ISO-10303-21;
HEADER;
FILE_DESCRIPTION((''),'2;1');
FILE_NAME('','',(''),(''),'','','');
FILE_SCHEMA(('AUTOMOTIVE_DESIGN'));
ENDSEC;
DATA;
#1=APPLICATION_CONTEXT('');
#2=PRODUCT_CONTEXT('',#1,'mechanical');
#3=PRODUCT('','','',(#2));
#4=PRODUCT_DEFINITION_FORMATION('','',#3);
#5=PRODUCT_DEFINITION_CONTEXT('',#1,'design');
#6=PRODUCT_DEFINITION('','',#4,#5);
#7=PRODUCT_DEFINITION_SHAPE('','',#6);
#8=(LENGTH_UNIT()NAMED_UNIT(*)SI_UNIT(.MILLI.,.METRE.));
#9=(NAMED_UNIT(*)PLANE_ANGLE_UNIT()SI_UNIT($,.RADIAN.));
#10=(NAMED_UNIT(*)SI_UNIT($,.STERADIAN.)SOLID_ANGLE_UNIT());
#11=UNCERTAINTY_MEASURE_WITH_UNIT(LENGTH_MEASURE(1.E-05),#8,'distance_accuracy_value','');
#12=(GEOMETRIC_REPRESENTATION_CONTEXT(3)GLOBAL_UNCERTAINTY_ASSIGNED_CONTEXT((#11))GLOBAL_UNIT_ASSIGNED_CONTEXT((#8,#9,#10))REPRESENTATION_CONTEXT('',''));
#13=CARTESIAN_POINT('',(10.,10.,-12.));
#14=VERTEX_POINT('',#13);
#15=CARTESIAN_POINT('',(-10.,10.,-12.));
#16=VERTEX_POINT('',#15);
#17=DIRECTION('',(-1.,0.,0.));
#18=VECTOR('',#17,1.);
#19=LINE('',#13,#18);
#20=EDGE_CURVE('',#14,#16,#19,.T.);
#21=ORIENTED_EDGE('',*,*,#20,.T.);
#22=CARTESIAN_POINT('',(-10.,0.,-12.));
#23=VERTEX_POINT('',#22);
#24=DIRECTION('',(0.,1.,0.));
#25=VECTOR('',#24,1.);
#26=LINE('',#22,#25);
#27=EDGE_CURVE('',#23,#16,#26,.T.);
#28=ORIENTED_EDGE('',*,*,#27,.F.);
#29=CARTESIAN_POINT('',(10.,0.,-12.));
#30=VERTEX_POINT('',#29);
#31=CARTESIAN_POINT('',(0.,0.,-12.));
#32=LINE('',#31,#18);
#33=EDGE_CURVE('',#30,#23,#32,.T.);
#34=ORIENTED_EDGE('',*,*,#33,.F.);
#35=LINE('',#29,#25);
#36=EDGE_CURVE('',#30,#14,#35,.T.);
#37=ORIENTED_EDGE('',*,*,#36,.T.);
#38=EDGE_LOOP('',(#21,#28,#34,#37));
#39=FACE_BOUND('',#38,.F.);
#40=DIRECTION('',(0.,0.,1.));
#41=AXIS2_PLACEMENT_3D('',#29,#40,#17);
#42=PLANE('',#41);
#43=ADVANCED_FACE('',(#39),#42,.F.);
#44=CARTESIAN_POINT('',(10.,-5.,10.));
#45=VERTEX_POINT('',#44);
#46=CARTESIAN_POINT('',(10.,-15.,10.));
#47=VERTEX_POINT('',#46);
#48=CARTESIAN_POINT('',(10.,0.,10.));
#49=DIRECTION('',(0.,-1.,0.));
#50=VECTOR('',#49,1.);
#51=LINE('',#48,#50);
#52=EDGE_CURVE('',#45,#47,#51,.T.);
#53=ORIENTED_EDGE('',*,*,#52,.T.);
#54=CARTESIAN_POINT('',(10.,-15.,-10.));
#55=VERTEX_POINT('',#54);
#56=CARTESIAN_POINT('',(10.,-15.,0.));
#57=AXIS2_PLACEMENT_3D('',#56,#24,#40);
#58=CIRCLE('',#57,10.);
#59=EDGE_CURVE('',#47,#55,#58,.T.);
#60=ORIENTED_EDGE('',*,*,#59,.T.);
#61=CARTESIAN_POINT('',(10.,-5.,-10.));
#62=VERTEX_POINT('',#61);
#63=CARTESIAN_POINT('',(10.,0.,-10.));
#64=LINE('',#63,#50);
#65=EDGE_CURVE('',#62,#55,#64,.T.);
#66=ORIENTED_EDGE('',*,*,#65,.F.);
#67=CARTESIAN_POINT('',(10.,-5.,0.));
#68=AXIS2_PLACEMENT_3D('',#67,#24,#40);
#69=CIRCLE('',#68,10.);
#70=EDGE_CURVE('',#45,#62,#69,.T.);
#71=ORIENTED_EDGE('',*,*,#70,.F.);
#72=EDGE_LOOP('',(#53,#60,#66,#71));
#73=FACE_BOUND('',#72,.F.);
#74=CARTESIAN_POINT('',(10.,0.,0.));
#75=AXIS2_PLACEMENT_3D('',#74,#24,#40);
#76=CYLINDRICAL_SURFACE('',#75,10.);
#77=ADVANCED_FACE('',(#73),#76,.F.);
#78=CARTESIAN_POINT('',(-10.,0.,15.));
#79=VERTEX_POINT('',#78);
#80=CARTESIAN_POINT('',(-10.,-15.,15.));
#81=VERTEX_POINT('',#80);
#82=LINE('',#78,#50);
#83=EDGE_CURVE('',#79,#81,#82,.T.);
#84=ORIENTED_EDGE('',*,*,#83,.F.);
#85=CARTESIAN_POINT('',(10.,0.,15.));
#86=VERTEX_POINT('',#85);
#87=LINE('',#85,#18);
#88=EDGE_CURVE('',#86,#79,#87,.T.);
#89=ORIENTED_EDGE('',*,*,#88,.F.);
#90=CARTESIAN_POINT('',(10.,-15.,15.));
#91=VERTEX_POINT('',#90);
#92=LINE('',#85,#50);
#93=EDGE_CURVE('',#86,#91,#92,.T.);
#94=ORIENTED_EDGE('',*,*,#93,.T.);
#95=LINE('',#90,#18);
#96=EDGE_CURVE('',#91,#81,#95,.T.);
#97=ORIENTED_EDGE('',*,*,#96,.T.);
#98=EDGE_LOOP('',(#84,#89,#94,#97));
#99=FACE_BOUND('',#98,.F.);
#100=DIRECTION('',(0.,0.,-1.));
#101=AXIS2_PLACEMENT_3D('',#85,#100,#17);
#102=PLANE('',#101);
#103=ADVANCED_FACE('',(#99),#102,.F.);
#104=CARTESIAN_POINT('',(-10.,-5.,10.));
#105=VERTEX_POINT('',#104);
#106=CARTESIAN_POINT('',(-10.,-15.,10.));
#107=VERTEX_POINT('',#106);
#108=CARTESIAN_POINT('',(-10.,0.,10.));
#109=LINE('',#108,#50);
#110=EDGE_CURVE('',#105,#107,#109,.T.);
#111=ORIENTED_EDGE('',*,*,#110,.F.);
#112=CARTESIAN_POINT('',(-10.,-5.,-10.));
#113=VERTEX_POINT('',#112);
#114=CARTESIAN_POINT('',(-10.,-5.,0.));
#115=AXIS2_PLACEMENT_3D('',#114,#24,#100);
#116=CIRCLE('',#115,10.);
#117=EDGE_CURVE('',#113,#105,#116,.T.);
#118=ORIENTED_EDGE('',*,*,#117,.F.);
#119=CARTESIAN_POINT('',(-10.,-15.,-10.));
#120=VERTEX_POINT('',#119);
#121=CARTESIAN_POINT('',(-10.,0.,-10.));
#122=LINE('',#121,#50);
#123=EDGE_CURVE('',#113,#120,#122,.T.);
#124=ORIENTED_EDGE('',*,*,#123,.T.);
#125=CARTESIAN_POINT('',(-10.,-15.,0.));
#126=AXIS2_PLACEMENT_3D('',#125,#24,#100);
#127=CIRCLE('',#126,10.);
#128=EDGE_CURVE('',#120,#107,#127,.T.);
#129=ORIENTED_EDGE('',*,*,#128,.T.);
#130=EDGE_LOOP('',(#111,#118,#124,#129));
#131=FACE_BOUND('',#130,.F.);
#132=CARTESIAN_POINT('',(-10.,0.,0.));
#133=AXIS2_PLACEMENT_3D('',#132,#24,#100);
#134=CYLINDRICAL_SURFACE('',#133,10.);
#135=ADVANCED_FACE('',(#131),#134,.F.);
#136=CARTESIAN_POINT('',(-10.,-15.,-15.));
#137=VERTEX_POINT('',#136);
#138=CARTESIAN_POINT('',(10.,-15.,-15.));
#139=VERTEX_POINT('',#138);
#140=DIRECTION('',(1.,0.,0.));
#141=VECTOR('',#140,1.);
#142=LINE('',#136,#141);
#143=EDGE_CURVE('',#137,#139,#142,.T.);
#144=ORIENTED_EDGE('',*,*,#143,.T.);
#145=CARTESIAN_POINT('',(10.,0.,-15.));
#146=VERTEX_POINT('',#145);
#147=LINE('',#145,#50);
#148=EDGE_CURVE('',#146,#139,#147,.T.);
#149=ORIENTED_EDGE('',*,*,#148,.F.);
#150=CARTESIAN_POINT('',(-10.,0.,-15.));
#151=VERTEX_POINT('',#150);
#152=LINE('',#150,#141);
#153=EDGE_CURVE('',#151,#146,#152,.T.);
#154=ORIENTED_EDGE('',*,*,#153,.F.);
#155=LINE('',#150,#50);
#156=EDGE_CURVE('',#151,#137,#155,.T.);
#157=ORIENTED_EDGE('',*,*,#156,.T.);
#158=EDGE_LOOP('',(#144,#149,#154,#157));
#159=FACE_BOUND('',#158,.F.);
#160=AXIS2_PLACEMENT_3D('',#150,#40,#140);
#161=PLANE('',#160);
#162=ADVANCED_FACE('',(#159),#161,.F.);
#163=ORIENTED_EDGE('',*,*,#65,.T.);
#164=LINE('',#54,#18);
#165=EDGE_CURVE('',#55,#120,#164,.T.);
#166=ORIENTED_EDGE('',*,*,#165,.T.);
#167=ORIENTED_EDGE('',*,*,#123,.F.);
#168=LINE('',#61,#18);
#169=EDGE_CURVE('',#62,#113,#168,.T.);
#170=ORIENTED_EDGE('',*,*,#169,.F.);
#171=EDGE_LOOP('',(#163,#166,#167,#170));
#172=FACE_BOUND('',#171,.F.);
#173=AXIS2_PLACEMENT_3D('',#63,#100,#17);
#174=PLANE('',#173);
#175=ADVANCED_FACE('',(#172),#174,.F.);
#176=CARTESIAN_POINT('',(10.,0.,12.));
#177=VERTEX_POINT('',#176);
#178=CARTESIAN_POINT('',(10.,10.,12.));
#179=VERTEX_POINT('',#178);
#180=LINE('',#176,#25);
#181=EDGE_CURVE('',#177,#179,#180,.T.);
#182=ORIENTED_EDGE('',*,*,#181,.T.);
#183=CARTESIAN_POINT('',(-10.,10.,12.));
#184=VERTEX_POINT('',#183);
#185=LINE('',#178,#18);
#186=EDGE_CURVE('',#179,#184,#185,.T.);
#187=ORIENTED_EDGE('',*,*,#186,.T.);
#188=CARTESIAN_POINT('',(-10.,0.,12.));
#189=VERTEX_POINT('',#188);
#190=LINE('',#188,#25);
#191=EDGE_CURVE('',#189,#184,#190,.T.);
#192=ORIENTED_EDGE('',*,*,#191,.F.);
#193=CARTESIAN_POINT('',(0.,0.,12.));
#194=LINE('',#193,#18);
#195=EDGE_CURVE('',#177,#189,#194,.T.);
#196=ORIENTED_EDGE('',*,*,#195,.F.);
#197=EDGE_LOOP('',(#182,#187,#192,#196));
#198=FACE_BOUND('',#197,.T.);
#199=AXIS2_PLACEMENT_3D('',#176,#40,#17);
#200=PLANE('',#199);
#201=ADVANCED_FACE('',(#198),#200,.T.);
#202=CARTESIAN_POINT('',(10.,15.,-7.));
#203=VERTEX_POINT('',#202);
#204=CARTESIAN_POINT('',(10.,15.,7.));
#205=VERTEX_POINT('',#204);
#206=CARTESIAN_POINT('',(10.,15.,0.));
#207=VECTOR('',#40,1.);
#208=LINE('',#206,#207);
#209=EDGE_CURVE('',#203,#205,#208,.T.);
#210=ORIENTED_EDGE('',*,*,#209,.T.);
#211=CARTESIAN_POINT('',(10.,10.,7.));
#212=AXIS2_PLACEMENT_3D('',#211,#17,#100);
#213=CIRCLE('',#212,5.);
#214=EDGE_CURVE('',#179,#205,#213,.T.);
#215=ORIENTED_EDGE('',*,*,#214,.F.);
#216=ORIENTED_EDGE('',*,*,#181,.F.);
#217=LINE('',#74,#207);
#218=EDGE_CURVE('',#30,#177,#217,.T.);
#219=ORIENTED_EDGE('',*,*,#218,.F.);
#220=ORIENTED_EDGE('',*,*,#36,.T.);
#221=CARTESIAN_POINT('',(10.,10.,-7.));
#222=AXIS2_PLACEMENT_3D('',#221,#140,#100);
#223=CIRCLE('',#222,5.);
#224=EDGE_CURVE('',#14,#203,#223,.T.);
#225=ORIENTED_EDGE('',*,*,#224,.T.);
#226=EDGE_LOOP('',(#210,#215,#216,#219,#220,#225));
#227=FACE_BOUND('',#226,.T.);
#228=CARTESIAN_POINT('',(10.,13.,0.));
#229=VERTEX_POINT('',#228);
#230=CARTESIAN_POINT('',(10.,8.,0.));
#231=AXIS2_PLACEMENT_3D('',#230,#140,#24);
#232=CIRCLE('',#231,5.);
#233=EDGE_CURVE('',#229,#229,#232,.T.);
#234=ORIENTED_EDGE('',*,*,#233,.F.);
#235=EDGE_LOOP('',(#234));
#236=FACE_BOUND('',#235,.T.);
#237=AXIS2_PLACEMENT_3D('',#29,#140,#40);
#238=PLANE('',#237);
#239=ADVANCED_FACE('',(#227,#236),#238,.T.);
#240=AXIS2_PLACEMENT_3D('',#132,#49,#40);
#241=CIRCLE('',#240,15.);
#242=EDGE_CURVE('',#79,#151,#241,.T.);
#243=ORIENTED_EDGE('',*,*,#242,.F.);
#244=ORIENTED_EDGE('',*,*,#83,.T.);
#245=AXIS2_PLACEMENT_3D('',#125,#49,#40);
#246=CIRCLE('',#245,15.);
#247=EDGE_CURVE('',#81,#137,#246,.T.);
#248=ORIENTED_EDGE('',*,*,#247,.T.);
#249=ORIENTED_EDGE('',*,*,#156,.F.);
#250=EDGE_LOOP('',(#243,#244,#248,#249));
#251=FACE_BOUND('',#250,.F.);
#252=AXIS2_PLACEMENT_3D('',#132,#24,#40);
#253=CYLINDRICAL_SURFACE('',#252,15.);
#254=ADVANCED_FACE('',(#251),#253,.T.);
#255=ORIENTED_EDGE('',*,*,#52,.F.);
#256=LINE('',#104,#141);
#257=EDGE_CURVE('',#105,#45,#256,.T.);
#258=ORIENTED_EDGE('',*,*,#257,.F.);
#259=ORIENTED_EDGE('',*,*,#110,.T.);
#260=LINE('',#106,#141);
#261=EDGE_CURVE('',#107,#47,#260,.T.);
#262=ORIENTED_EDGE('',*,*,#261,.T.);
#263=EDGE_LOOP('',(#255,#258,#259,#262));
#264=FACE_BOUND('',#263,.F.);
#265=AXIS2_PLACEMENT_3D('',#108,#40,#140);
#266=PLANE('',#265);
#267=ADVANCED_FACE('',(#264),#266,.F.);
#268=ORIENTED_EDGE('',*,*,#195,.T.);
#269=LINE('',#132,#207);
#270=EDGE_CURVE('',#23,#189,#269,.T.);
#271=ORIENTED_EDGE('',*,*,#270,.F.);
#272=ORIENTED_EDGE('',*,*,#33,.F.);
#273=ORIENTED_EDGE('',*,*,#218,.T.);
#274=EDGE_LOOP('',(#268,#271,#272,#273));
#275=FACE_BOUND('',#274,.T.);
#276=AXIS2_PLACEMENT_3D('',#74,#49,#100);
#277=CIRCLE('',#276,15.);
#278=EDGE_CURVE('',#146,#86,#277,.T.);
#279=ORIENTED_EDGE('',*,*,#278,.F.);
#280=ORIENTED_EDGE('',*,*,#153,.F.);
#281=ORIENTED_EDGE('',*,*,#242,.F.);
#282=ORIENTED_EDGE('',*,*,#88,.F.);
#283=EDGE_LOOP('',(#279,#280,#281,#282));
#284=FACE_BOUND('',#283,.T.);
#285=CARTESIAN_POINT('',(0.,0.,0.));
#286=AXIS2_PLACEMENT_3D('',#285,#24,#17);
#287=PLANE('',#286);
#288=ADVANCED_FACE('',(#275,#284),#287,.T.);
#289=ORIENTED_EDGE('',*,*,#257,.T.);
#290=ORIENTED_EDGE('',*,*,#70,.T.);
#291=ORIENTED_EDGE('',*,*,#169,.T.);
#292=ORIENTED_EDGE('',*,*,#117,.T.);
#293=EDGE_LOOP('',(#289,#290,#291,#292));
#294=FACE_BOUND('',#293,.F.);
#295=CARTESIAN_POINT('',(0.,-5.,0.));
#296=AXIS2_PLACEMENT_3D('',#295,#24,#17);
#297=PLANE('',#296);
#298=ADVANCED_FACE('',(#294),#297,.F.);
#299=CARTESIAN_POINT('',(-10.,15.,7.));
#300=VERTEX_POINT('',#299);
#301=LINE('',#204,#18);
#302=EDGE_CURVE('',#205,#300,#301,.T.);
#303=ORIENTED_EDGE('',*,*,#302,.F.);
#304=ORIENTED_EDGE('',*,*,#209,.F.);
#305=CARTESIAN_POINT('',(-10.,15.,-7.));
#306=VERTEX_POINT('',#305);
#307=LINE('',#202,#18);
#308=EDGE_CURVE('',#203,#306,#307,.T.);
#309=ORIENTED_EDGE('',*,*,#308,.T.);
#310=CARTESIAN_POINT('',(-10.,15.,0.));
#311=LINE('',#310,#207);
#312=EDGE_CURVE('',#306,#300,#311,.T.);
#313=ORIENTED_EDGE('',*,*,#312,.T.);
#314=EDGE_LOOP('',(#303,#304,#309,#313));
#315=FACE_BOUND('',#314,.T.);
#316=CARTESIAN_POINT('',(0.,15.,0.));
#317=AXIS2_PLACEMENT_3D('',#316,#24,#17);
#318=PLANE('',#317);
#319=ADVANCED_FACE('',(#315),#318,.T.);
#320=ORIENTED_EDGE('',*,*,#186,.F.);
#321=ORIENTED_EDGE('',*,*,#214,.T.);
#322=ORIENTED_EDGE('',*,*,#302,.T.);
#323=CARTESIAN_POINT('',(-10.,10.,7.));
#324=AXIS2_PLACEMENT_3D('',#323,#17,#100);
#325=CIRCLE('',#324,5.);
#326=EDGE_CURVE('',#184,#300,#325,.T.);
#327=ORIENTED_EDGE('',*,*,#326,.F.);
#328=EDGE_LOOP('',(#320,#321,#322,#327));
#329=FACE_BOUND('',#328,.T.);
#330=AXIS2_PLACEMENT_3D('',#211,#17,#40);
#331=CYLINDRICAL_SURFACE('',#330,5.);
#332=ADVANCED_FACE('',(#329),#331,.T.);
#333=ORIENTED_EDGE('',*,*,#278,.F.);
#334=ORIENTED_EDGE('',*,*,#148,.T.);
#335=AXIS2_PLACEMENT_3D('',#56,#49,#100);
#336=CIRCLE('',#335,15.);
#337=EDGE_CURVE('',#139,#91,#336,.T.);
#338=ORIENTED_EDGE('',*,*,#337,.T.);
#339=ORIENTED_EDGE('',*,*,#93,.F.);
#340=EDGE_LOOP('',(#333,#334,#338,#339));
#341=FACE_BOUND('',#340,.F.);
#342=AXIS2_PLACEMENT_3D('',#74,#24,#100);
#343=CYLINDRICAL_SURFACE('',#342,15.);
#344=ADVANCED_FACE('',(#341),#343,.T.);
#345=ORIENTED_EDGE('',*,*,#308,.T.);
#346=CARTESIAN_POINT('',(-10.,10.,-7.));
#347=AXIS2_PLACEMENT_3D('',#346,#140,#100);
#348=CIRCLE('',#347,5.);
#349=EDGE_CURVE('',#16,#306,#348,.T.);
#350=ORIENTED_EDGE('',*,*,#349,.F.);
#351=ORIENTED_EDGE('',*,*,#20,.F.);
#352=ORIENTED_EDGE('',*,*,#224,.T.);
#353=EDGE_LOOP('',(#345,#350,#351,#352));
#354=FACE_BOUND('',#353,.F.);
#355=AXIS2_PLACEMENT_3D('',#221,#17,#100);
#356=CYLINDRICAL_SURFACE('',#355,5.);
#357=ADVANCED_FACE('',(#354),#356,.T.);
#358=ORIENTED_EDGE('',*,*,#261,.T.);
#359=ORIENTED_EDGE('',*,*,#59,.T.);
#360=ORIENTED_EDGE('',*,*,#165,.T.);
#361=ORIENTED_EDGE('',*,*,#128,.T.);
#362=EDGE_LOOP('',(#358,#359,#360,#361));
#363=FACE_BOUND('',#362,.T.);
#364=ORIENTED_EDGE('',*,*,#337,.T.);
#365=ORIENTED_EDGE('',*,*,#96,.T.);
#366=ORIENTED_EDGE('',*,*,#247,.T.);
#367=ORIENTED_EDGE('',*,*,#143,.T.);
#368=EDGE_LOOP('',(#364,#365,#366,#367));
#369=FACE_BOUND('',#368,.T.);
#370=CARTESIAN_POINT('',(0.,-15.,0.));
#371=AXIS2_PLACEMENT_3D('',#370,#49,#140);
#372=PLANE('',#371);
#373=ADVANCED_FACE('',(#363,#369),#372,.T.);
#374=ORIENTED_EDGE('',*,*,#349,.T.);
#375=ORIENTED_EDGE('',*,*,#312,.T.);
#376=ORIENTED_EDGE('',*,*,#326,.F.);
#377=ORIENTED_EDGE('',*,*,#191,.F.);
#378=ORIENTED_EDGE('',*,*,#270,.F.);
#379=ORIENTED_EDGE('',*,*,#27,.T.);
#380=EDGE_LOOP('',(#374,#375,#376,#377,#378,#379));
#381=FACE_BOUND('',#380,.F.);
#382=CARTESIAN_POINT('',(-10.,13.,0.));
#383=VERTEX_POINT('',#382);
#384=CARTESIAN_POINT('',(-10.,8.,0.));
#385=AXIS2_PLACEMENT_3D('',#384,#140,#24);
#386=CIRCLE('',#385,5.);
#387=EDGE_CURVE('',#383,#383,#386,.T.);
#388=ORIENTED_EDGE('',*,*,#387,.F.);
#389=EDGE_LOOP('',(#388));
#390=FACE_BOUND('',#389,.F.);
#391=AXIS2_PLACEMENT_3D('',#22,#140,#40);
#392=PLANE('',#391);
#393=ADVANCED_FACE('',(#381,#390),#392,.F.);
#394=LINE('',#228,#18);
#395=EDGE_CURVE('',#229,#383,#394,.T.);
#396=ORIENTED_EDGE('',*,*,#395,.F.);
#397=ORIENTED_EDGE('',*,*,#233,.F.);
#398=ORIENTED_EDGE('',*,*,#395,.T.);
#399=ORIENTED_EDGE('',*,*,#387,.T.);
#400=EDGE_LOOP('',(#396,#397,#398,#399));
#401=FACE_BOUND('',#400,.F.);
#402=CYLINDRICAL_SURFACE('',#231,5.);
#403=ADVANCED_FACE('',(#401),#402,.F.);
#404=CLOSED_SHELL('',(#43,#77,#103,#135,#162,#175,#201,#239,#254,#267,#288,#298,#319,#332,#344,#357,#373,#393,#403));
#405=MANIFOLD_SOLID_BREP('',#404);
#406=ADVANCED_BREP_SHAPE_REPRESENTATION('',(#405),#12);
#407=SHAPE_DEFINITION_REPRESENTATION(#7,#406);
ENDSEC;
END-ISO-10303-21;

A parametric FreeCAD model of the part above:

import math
import FreeCAD as App
import Part
import Sketcher

V = App.Vector


def edges_at(feature, points):
    """Names of the edges that pass closest to the given points."""
    edges = feature.Shape.Edges
    near = lambda p: min(range(len(edges)), key=lambda i: edges[i].distToShape(Part.Vertex(*p))[0])
    return sorted({f"Edge{near(p) + 1}" for p in points})


def add_polygon(sketch, points):
    """Adds a closed chain of lines whose ends are joined by coincident constraints."""
    first, n = sketch.GeometryCount, len(points)
    for a, b in zip(points, points[1:] + points[:1]):
        sketch.addGeometry(Part.LineSegment(App.Vector(*a, 0), App.Vector(*b, 0)), False)
    for i in range(n):
        sketch.addConstraint(Sketcher.Constraint("Coincident", first + i, 2, first + (i + 1) % n, 1))

doc = App.newDocument("Part")
body = doc.addObject("PartDesign::Body", "Body")

# Sketch on XZ plane
sketch1 = body.newObject("Sketcher::SketchObject", "Sketch")
sketch1.AttachmentSupport = (doc.getObject("XZ_Plane"), [""])
sketch1.MapMode = "FlatFace"
sketch1.addGeometry(Part.LineSegment(V(-10, -15, 0), V(10, -15, 0)), False)
sketch1.addGeometry(Part.ArcOfCircle(Part.Circle(V(10, 0, 0), V(0, 0, 1), 15), math.radians(-90), math.radians(90)), False)
sketch1.addGeometry(Part.LineSegment(V(10, 15, 0), V(-10, 15, 0)), False)
sketch1.addGeometry(Part.ArcOfCircle(Part.Circle(V(-10, 0, 0), V(0, 0, 1), 15), math.radians(90), math.radians(270)), False)
sketch1.addGeometry(Part.LineSegment(V(10, -10, 0), V(-10, -10, 0)), False)
sketch1.addGeometry(Part.ArcOfCircle(Part.Circle(V(-10, 0, 0), V(0, 0, 1), 10), math.radians(90), math.radians(270)), False)
sketch1.addGeometry(Part.LineSegment(V(-10, 10, 0), V(10, 10, 0)), False)
sketch1.addGeometry(Part.ArcOfCircle(Part.Circle(V(10, 0, 0), V(0, 0, 1), 10), math.radians(-90), math.radians(90)), False)
sketch1.addConstraint(Sketcher.Constraint("Tangent", 0, 2, 1, 1))
sketch1.addConstraint(Sketcher.Constraint("Tangent", 1, 2, 2, 1))
sketch1.addConstraint(Sketcher.Constraint("Tangent", 2, 2, 3, 1))
sketch1.addConstraint(Sketcher.Constraint("Tangent", 3, 2, 0, 1))
sketch1.addConstraint(Sketcher.Constraint("Tangent", 4, 2, 5, 2))
sketch1.addConstraint(Sketcher.Constraint("Tangent", 5, 1, 6, 1))
sketch1.addConstraint(Sketcher.Constraint("Tangent", 6, 2, 7, 2))
sketch1.addConstraint(Sketcher.Constraint("Tangent", 7, 1, 4, 1))
sketch1.addConstraint(Sketcher.Constraint("Horizontal", 0))
sketch1.addConstraint(Sketcher.Constraint("Horizontal", 2))
sketch1.addConstraint(Sketcher.Constraint("Horizontal", 4))
sketch1.addConstraint(Sketcher.Constraint("Horizontal", 6))
sketch1.addConstraint(Sketcher.Constraint("Coincident", 5, 3, 3, 3))
sketch1.addConstraint(Sketcher.Constraint("Symmetric", 1, 3, 3, 3, -1, 1))
sketch1.addConstraint(Sketcher.Constraint("Vertical", 7, 3, 0, 2))
sketch1.addConstraint(Sketcher.Constraint("Radius", 1, 15.0))
sketch1.addConstraint(Sketcher.Constraint("Radius", 5, 10.0))
sketch1.addConstraint(Sketcher.Constraint("DistanceX", 0, 1, 0, 2, 20.0))
pad1 = body.newObject("PartDesign::Pad", "Pad")
pad1.Profile = sketch1
pad1.Length = 15

# Sketch on XZ plane
sketch2 = body.newObject("Sketcher::SketchObject", "Sketch001")
sketch2.AttachmentSupport = (doc.getObject("XZ_Plane"), [""])
sketch2.MapMode = "FlatFace"
sketch2.addGeometry(Part.ArcOfCircle(Part.Circle(V(-10, 0, 0), V(0, 0, 1), 10), math.radians(90), math.radians(270)), False)
sketch2.addGeometry(Part.LineSegment(V(-10, 10, 0), V(10, 10, 0)), False)
sketch2.addGeometry(Part.ArcOfCircle(Part.Circle(V(10, 0, 0), V(0, 0, 1), 10), math.radians(-90), math.radians(90)), False)
sketch2.addGeometry(Part.LineSegment(V(10, -10, 0), V(-10, -10, 0)), False)
sketch2.addConstraint(Sketcher.Constraint("Tangent", 0, 1, 1, 1))
sketch2.addConstraint(Sketcher.Constraint("Tangent", 1, 2, 2, 2))
sketch2.addConstraint(Sketcher.Constraint("Tangent", 2, 1, 3, 1))
sketch2.addConstraint(Sketcher.Constraint("Tangent", 3, 2, 0, 2))
sketch2.addConstraint(Sketcher.Constraint("Horizontal", 1))
sketch2.addConstraint(Sketcher.Constraint("Horizontal", 3))
sketch2.addConstraint(Sketcher.Constraint("Symmetric", 0, 3, 2, 3, -1, 1))
sketch2.addConstraint(Sketcher.Constraint("Radius", 0, 10.0))
sketch2.addConstraint(Sketcher.Constraint("DistanceX", 1, 1, 1, 2, 20.0))
pad2 = body.newObject("PartDesign::Pad", "Pad001")
pad2.Profile = sketch2
pad2.Length = 5

# Sketch on XZ plane
sketch3 = body.newObject("Sketcher::SketchObject", "Sketch002")
sketch3.AttachmentSupport = (doc.getObject("XZ_Plane"), [""])
sketch3.MapMode = "FlatFace"
add_polygon(sketch3, [(10, 12), (10, -12), (-10, -12), (-10, 12)])  # lines 0-3
sketch3.addConstraint(Sketcher.Constraint("Vertical", 0))
sketch3.addConstraint(Sketcher.Constraint("Horizontal", 1))
sketch3.addConstraint(Sketcher.Constraint("Vertical", 2))
sketch3.addConstraint(Sketcher.Constraint("Horizontal", 3))
sketch3.addConstraint(Sketcher.Constraint("Symmetric", 0, 2, 2, 2, -1, 1))
sketch3.addConstraint(Sketcher.Constraint("DistanceX", 1, 2, 1, 1, 20.0))
sketch3.addConstraint(Sketcher.Constraint("DistanceY", 0, 2, 0, 1, 24.0))
pad3 = body.newObject("PartDesign::Pad", "Pad002")
pad3.Profile = sketch3
pad3.Length = 15
pad3.Reversed = True
doc.recompute()

fillet = body.newObject("PartDesign::Fillet", "Fillet")
fillet.Base = (pad3, edges_at(pad3, [(0, 15, -12), (0, 15, 12)]))
fillet.Radius = 5

# Sketch on YZ plane
sketch4 = body.newObject("Sketcher::SketchObject", "Sketch003")
sketch4.AttachmentSupport = (doc.getObject("YZ_Plane"), [""])
sketch4.MapMode = "FlatFace"
sketch4.AttachmentOffset = App.Placement(V(0, 0, 10), App.Rotation())
sketch4.addGeometry(Part.Circle(V(8, 0, 0), V(0, 0, 1), 5), False)
sketch4.addConstraint(Sketcher.Constraint("PointOnObject", 0, 3, -1))
sketch4.addConstraint(Sketcher.Constraint("Diameter", 0, 10.0))
sketch4.addConstraint(Sketcher.Constraint("DistanceX", -1, 1, 0, 3, 8.0))
pocket1 = body.newObject("PartDesign::Pocket", "Pocket")
pocket1.Profile = sketch4
pocket1.Length = 25

doc.recompute()
